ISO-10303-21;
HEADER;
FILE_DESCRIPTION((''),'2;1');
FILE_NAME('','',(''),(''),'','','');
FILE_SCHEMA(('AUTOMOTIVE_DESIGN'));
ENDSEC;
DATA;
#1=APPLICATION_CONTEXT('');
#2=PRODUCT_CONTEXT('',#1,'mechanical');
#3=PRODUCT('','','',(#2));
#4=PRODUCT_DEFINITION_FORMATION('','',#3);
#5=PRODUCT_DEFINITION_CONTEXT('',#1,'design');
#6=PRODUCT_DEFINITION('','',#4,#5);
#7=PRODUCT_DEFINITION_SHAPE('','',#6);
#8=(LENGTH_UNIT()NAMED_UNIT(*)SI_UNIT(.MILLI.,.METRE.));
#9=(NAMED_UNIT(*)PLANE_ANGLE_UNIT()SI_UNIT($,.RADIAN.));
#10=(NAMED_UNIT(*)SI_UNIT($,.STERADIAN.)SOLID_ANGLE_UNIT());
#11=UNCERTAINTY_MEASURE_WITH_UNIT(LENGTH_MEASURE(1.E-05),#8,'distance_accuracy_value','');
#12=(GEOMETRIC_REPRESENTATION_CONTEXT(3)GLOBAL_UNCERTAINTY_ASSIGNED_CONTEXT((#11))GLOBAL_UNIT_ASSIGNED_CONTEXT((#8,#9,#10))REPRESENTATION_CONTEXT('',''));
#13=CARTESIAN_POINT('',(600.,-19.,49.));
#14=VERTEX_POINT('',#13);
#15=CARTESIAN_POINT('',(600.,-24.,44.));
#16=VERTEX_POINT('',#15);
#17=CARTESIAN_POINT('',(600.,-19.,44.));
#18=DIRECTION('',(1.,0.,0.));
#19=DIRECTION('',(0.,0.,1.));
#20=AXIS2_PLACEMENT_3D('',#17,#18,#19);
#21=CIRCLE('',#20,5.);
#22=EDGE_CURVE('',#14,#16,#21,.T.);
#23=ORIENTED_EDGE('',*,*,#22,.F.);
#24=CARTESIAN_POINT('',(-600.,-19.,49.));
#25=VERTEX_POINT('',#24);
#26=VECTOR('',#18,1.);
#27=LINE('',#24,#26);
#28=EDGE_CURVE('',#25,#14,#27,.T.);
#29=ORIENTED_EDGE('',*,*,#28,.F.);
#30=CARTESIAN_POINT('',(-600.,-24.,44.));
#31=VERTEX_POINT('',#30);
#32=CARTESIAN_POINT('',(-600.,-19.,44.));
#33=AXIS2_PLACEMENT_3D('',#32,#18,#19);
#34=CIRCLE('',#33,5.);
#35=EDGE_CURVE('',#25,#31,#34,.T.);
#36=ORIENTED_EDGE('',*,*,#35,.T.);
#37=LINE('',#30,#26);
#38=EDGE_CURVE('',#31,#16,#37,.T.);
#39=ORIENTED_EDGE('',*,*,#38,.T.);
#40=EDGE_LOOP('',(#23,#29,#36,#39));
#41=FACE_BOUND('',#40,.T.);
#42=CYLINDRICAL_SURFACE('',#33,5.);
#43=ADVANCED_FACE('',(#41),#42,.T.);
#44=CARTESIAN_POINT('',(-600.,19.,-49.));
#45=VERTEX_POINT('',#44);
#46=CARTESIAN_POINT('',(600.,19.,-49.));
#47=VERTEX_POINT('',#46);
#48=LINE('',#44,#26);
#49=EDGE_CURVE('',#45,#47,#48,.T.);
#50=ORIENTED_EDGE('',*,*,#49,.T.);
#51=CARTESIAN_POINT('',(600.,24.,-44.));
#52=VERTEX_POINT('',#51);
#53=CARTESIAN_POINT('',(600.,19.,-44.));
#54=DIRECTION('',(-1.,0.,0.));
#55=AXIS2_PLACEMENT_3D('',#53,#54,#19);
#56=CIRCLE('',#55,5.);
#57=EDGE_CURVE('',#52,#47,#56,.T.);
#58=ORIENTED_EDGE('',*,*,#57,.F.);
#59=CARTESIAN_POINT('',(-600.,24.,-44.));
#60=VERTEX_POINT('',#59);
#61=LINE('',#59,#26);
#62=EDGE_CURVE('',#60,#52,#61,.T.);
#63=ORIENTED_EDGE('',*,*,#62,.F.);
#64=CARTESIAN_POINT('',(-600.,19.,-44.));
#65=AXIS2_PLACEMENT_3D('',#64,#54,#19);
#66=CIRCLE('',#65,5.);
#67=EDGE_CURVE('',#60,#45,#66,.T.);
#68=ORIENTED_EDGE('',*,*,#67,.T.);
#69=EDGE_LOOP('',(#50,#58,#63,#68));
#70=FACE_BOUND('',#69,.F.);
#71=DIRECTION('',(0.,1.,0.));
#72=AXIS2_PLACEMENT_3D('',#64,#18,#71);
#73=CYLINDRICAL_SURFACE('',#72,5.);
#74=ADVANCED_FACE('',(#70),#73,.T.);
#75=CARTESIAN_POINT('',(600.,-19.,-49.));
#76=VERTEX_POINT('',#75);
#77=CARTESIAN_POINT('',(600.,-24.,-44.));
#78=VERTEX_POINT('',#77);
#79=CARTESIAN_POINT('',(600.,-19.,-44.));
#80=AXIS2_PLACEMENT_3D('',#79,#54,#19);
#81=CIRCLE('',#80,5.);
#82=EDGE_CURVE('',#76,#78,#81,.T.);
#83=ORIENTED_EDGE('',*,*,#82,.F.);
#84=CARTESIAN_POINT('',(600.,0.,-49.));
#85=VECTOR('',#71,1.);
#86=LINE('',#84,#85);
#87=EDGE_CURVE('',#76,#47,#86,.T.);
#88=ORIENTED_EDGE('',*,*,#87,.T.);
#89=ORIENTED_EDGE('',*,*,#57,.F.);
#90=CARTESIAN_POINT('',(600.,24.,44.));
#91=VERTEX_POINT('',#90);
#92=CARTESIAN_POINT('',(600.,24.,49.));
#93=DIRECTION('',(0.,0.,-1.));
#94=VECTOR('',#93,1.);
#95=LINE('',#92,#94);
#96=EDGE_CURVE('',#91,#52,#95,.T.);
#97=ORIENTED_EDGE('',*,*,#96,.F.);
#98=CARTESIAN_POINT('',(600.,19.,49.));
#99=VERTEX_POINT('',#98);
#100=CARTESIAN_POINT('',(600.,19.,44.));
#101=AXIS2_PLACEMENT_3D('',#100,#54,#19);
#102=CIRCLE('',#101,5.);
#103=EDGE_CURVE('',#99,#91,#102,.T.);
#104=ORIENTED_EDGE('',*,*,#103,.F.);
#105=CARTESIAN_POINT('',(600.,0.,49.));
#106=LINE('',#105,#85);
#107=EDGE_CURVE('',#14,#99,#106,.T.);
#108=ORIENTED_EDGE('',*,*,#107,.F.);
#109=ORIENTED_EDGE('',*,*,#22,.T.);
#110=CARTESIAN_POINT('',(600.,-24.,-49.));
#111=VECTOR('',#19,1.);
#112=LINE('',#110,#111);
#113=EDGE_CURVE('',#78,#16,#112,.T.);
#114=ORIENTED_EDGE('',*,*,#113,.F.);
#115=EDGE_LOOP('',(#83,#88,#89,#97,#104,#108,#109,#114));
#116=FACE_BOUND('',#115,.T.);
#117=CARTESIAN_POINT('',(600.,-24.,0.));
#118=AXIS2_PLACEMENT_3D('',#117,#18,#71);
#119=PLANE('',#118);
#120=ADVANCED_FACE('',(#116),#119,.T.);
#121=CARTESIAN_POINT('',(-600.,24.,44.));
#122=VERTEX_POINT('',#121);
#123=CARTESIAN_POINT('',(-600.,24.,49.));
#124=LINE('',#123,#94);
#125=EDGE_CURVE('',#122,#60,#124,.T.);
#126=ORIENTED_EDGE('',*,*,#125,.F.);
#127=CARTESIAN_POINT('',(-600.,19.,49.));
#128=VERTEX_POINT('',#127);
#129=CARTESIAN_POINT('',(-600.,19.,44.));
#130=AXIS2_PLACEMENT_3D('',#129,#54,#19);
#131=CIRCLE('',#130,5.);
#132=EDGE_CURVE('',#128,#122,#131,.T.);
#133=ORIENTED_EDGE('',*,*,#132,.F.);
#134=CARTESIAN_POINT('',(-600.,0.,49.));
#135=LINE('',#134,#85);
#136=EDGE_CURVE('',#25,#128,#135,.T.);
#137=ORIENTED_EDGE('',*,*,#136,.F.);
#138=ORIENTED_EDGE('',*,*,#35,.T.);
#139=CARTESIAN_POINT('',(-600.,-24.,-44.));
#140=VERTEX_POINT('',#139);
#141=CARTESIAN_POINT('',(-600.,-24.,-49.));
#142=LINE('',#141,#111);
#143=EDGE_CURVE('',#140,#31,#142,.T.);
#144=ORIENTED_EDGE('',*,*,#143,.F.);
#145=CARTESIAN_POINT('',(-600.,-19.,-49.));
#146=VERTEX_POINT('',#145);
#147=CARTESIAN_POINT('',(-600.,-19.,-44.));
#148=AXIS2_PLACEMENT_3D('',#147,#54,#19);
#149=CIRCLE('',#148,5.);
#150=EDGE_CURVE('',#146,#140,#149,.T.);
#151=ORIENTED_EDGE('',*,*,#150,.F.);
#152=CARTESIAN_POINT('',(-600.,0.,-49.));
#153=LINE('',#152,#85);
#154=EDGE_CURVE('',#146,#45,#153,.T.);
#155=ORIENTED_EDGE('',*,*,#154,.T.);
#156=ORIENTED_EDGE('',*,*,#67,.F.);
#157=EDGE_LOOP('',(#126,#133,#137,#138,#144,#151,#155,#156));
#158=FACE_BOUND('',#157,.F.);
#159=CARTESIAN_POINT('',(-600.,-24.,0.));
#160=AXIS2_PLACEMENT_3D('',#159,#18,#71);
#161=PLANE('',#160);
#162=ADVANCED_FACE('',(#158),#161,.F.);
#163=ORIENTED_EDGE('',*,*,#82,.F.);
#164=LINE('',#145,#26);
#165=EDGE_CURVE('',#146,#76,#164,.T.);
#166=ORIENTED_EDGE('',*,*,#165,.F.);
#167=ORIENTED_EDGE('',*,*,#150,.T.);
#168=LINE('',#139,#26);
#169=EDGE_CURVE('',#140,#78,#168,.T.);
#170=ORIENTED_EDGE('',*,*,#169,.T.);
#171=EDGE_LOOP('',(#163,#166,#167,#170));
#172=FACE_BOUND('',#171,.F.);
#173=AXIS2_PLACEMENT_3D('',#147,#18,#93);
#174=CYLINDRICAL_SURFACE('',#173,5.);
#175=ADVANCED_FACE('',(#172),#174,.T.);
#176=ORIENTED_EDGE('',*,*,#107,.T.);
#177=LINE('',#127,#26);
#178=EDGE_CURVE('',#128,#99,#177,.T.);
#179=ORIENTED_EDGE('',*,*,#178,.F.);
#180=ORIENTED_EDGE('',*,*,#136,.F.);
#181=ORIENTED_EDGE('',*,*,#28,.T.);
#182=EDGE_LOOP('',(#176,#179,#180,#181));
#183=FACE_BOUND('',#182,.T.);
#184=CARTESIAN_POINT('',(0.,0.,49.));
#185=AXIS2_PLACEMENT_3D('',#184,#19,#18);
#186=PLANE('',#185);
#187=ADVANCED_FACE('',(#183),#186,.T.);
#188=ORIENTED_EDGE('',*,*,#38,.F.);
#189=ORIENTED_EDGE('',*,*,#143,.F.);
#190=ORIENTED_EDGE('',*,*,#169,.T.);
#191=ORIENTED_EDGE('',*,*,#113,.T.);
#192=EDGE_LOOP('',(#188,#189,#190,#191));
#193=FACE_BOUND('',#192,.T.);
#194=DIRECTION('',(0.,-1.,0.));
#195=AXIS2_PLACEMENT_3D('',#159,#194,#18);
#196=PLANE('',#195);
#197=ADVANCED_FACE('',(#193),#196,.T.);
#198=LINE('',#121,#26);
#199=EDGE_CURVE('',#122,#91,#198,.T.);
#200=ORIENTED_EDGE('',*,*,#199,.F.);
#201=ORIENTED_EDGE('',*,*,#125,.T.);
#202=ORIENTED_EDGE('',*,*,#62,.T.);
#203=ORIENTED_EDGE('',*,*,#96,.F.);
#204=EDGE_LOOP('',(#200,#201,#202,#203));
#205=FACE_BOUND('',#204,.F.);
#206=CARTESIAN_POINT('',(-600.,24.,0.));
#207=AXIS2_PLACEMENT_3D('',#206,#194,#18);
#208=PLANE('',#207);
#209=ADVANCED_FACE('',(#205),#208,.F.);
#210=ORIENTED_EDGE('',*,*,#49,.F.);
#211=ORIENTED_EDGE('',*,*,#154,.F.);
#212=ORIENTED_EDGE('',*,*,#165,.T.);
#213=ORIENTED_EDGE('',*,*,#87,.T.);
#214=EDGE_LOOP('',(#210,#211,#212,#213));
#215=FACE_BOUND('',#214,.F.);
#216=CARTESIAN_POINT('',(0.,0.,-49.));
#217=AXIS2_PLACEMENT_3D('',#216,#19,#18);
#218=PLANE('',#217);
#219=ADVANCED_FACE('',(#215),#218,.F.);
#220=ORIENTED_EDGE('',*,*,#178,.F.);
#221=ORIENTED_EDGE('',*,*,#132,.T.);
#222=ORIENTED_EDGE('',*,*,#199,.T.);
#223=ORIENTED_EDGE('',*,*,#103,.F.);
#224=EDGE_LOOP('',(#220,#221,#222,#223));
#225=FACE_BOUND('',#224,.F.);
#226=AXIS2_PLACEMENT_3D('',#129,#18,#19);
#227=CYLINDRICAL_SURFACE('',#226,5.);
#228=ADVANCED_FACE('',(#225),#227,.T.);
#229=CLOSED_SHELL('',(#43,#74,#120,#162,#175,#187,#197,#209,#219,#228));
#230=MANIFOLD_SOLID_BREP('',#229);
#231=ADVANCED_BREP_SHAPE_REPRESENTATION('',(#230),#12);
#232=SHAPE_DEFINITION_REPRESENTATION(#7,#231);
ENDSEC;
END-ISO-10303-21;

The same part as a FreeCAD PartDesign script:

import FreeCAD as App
import Part
import Sketcher

V = App.Vector


def edges_at(feature, points):
    """Names of the edges that pass closest to the given points."""
    edges = feature.Shape.Edges
    near = lambda p: min(range(len(edges)), key=lambda i: edges[i].distToShape(Part.Vertex(*p))[0])
    return sorted({f"Edge{near(p) + 1}" for p in points})


def add_polygon(sketch, points):
    """Adds a closed chain of lines whose ends are joined by coincident constraints."""
    first, n = sketch.GeometryCount, len(points)
    for a, b in zip(points, points[1:] + points[:1]):
        sketch.addGeometry(Part.LineSegment(App.Vector(*a, 0), App.Vector(*b, 0)), False)
    for i in range(n):
        sketch.addConstraint(Sketcher.Constraint("Coincident", first + i, 2, first + (i + 1) % n, 1))

doc = App.newDocument("Part")
params = doc.addObject("Spreadsheet::Sheet", "Params")
for row, (alias, value) in enumerate([
    ("sketch1_width", "1200 mm"),
    ("sketch1_height", "48 mm"),
    ("pad1_length", "98 mm"),
    ("fillet_radius", "5 mm"),
], start=1):
    params.set(f"A{row}", alias)
    params.set(f"B{row}", "=" + value)
    params.setAlias(f"B{row}", alias)

body = doc.addObject("PartDesign::Body", "Body")

# Sketch on XY plane
sketch1 = body.newObject("Sketcher::SketchObject", "Sketch")
sketch1.AttachmentSupport = (doc.getObject("XY_Plane"), [""])
sketch1.MapMode = "FlatFace"
add_polygon(sketch1, [(-600, 24), (-600, -24), (600, -24), (600, 24)])  # lines 0-3
sketch1.addConstraint([
    Sketcher.Constraint("Vertical", 0),
    Sketcher.Constraint("Horizontal", 1),
    Sketcher.Constraint("Vertical", 2),
    Sketcher.Constraint("Horizontal", 3),
    Sketcher.Constraint("Symmetric", 0, 2, 2, 2, -1, 1),
    Sketcher.Constraint("DistanceX", 1, 1, 1, 2, 1200.0),
    Sketcher.Constraint("DistanceY", 0, 2, 0, 1, 48.0),
])
sketch1.setExpression("Constraints[9]", "Params.sketch1_width")
sketch1.setExpression("Constraints[10]", "Params.sketch1_height")
pad1 = body.newObject("PartDesign::Pad", "Pad")
pad1.Profile = sketch1
pad1.setExpression("Length", "Params.pad1_length")
pad1.Midplane = True
doc.recompute()

fillet = body.newObject("PartDesign::Fillet", "Fillet")
fillet.Base = (pad1, edges_at(pad1, [
    (0, -24, 49),
    (0, 24, 49),
    (0, -24, -49),
    (0, 24, -49),
]))
fillet.setExpression("Radius", "Params.fillet_radius")

doc.recompute()
